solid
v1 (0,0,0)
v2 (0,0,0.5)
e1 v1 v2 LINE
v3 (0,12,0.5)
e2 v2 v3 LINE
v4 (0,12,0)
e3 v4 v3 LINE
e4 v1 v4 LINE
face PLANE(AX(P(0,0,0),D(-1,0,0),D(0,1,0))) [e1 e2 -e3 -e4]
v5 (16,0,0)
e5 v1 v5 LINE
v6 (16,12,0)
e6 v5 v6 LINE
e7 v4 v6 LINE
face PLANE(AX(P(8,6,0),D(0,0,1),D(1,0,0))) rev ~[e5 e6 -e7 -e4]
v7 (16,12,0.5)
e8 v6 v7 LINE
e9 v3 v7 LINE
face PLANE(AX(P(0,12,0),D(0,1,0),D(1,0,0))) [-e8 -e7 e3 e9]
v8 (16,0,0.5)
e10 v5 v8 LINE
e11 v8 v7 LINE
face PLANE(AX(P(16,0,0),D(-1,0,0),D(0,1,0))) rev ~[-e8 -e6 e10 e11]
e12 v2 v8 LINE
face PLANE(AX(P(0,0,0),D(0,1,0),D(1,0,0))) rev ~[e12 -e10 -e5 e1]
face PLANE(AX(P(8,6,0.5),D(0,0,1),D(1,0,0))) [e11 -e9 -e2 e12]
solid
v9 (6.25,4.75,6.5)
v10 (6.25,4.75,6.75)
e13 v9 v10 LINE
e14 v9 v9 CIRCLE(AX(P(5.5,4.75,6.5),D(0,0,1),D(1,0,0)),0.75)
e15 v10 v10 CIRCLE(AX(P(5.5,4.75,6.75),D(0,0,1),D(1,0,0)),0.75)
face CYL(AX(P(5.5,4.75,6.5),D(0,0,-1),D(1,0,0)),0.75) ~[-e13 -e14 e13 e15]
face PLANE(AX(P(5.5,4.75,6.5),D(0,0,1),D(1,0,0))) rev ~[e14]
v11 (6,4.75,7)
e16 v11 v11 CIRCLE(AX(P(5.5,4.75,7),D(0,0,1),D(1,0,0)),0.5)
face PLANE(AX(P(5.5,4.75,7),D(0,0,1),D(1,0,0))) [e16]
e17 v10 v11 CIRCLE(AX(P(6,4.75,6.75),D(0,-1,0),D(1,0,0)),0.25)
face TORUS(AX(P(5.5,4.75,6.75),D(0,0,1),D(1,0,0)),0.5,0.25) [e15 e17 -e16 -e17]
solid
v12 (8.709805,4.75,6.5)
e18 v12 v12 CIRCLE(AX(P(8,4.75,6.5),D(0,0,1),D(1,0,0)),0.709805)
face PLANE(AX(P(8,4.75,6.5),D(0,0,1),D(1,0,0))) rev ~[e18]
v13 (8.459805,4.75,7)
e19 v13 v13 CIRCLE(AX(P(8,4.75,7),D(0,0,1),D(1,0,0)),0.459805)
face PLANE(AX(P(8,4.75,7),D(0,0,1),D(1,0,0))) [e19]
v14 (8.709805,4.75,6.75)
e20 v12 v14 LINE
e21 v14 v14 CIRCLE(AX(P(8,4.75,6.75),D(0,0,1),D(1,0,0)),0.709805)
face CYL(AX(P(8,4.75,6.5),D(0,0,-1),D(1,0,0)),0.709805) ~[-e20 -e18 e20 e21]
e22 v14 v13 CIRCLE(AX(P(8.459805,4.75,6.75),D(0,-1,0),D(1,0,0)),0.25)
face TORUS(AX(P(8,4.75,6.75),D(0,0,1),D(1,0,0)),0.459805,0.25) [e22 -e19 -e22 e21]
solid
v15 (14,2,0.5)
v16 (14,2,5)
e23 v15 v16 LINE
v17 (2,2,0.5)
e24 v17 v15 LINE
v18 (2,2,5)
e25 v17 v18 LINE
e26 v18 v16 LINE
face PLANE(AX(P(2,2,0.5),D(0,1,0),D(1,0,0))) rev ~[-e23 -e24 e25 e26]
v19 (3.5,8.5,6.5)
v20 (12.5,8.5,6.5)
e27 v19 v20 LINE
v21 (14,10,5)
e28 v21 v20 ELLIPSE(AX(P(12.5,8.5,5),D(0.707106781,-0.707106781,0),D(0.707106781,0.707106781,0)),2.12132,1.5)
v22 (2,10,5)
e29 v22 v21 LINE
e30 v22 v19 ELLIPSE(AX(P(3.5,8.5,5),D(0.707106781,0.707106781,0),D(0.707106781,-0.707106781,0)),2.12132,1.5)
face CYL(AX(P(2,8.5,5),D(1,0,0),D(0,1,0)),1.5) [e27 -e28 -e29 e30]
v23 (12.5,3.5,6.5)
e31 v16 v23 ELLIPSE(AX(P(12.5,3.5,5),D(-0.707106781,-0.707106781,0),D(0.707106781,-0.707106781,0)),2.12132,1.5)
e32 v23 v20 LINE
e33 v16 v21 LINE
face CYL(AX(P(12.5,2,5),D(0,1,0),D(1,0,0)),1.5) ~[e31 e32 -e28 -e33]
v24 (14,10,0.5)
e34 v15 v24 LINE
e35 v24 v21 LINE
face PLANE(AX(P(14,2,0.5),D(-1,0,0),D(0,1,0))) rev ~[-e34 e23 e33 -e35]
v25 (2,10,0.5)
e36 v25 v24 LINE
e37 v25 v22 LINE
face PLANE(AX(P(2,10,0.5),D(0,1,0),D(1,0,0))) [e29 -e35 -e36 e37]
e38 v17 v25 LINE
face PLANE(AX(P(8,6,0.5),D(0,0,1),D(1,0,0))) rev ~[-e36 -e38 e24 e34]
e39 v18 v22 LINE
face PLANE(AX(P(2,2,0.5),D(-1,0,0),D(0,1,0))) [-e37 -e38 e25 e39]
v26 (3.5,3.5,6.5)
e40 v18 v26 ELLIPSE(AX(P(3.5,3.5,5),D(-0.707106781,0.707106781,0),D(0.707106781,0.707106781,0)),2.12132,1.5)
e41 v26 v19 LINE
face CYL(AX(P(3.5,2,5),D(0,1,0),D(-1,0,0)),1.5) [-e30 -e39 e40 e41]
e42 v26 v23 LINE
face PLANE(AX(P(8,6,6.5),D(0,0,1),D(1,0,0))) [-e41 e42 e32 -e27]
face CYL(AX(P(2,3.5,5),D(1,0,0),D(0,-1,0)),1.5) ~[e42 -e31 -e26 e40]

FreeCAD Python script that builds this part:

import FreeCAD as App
import Part
import Sketcher
Q = App.Units.Quantity


def edges_at(feature, points):
    """Names of the edges that pass closest to the given points."""
    edges = feature.Shape.Edges
    near = lambda p: min(range(len(edges)), key=lambda i: edges[i].distToShape(Part.Vertex(*p))[0])
    return sorted({f"Edge{near(p) + 1}" for p in points})

doc = App.newDocument("Part")
body = doc.addObject("PartDesign::Body", "Body")

# Sketch on XY plane
sketch1 = body.newObject("Sketcher::SketchObject", "Sketch")
sketch1.AttachmentSupport = (doc.getObject("XY_Plane"), [""])
sketch1.MapMode = "FlatFace"
sketch1.addGeometry([
    Part.LineSegment(App.Vector(0, 12, 0), App.Vector(0, 0, 0)),
    Part.LineSegment(App.Vector(0, 0, 0), App.Vector(16, 0, 0)),
    Part.LineSegment(App.Vector(16, 0, 0), App.Vector(16, 12, 0)),
    Part.LineSegment(App.Vector(16, 12, 0), App.Vector(0, 12, 0)),
], False)
sketch1.addConstraint([
    Sketcher.Constraint("Coincident", 0, 2, 1, 1),
    Sketcher.Constraint("Coincident", 1, 2, 2, 1),
    Sketcher.Constraint("Coincident", 2, 2, 3, 1),
    Sketcher.Constraint("Coincident", 3, 2, 0, 1),
    Sketcher.Constraint("Vertical", 0),
    Sketcher.Constraint("Horizontal", 1),
    Sketcher.Constraint("Vertical", 2),
    Sketcher.Constraint("Horizontal", 3),
    Sketcher.Constraint("Coincident", 0, 2, -1, 1),
    Sketcher.Constraint("DistanceX", 1, 1, 1, 2, Q("16 mm")),
    Sketcher.Constraint("DistanceY", 0, 2, 0, 1, Q("12 mm")),
])
pad1 = body.newObject("PartDesign::Pad", "Pad")
pad1.Profile = sketch1
pad1.Length = 0.5
body2 = doc.addObject("PartDesign::Body", "Body001")

# Sketch on XY plane
sketch2 = body2.newObject("Sketcher::SketchObject", "Sketch001")
sketch2.AttachmentSupport = (doc.getObject("XY_Plane001"), [""])
sketch2.MapMode = "FlatFace"
sketch2.AttachmentOffset = App.Placement(App.Vector(0, 0, 0.5), App.Rotation())
sketch2.addGeometry([
    Part.LineSegment(App.Vector(2, 10, 0), App.Vector(2, 2, 0)),
    Part.LineSegment(App.Vector(2, 2, 0), App.Vector(14, 2, 0)),
    Part.LineSegment(App.Vector(14, 2, 0), App.Vector(14, 10, 0)),
    Part.LineSegment(App.Vector(14, 10, 0), App.Vector(2, 10, 0)),
], False)
sketch2.addConstraint([
    Sketcher.Constraint("Coincident", 0, 2, 1, 1),
    Sketcher.Constraint("Coincident", 1, 2, 2, 1),
    Sketcher.Constraint("Coincident", 2, 2, 3, 1),
    Sketcher.Constraint("Coincident", 3, 2, 0, 1),
    Sketcher.Constraint("Vertical", 0),
    Sketcher.Constraint("Horizontal", 1),
    Sketcher.Constraint("Vertical", 2),
    Sketcher.Constraint("Horizontal", 3),
    Sketcher.Constraint("DistanceX", 1, 1, 1, 2, Q("12 mm")),
    Sketcher.Constraint("DistanceY", 0, 2, 0, 1, Q("8 mm")),
    Sketcher.Constraint("DistanceX", -1, 1, 0, 2, Q("2 mm")),
    Sketcher.Constraint("DistanceY", -1, 1, 0, 2, Q("2 mm")),
])
pad2 = body2.newObject("PartDesign::Pad", "Pad001")
pad2.Profile = sketch2
pad2.Length = 6
doc.recompute()

fillet = body2.newObject("PartDesign::Fillet", "Fillet")
fillet.Base = (pad2, edges_at(pad2, [
    (8, 2, 6.5),
    (14, 6, 6.5),
    (8, 10, 6.5),
    (2, 6, 6.5),
]))
fillet.Radius = 1.5
body3 = doc.addObject("PartDesign::Body", "Body002")

# Sketch on XY plane
sketch3 = body3.newObject("Sketcher::SketchObject", "Sketch002")
sketch3.AttachmentSupport = (doc.getObject("XY_Plane002"), [""])
sketch3.MapMode = "FlatFace"
sketch3.AttachmentOffset = App.Placement(App.Vector(0, 0, 6.5), App.Rotation())
sketch3.addGeometry(Part.Circle(App.Vector(5.5, 4.8, 0), App.Vector(0, 0, 1), 0.8), False)
sketch3.addConstraint([
    Sketcher.Constraint("Diameter", 0, Q("1.5 mm")),
    Sketcher.Constraint("DistanceX", -1, 1, 0, 3, Q("5.5 mm")),
    Sketcher.Constraint("DistanceY", -1, 1, 0, 3, Q("4.75 mm")),
])
pad3 = body3.newObject("PartDesign::Pad", "Pad002")
pad3.Profile = sketch3
pad3.Length = 0.5
doc.recompute()

fillet2 = body3.newObject("PartDesign::Fillet", "Fillet001")
fillet2.Base = (pad3, edges_at(pad3, [(4.75, 4.75, 7)]))
fillet2.Radius = 0.25
body4 = doc.addObject("PartDesign::Body", "Body003")

# Sketch on XY plane
sketch4 = body4.newObject("Sketcher::SketchObject", "Sketch003")
sketch4.AttachmentSupport = (doc.getObject("XY_Plane003"), [""])
sketch4.MapMode = "FlatFace"
sketch4.AttachmentOffset = App.Placement(App.Vector(0, 0, 6.5), App.Rotation())
sketch4.addGeometry(Part.Circle(App.Vector(8, 4.8, 0), App.Vector(0, 0, 1), 0.7), False)
sketch4.addConstraint([
    Sketcher.Constraint("DistanceX", -1, 1, 0, 3, Q("8 mm")),
    Sketcher.Constraint("Diameter", 0, Q("1.41961 mm")),
    Sketcher.Constraint("DistanceY", -1, 1, 0, 3, Q("4.75 mm")),
])
pad4 = body4.newObject("PartDesign::Pad", "Pad003")
pad4.Profile = sketch4
pad4.Length = 0.5
doc.recompute()

fillet3 = body4.newObject("PartDesign::Fillet", "Fillet002")
fillet3.Base = (pad4, edges_at(pad4, [(7.29, 4.75, 7)]))
fillet3.Radius = 0.25

doc.recompute()
